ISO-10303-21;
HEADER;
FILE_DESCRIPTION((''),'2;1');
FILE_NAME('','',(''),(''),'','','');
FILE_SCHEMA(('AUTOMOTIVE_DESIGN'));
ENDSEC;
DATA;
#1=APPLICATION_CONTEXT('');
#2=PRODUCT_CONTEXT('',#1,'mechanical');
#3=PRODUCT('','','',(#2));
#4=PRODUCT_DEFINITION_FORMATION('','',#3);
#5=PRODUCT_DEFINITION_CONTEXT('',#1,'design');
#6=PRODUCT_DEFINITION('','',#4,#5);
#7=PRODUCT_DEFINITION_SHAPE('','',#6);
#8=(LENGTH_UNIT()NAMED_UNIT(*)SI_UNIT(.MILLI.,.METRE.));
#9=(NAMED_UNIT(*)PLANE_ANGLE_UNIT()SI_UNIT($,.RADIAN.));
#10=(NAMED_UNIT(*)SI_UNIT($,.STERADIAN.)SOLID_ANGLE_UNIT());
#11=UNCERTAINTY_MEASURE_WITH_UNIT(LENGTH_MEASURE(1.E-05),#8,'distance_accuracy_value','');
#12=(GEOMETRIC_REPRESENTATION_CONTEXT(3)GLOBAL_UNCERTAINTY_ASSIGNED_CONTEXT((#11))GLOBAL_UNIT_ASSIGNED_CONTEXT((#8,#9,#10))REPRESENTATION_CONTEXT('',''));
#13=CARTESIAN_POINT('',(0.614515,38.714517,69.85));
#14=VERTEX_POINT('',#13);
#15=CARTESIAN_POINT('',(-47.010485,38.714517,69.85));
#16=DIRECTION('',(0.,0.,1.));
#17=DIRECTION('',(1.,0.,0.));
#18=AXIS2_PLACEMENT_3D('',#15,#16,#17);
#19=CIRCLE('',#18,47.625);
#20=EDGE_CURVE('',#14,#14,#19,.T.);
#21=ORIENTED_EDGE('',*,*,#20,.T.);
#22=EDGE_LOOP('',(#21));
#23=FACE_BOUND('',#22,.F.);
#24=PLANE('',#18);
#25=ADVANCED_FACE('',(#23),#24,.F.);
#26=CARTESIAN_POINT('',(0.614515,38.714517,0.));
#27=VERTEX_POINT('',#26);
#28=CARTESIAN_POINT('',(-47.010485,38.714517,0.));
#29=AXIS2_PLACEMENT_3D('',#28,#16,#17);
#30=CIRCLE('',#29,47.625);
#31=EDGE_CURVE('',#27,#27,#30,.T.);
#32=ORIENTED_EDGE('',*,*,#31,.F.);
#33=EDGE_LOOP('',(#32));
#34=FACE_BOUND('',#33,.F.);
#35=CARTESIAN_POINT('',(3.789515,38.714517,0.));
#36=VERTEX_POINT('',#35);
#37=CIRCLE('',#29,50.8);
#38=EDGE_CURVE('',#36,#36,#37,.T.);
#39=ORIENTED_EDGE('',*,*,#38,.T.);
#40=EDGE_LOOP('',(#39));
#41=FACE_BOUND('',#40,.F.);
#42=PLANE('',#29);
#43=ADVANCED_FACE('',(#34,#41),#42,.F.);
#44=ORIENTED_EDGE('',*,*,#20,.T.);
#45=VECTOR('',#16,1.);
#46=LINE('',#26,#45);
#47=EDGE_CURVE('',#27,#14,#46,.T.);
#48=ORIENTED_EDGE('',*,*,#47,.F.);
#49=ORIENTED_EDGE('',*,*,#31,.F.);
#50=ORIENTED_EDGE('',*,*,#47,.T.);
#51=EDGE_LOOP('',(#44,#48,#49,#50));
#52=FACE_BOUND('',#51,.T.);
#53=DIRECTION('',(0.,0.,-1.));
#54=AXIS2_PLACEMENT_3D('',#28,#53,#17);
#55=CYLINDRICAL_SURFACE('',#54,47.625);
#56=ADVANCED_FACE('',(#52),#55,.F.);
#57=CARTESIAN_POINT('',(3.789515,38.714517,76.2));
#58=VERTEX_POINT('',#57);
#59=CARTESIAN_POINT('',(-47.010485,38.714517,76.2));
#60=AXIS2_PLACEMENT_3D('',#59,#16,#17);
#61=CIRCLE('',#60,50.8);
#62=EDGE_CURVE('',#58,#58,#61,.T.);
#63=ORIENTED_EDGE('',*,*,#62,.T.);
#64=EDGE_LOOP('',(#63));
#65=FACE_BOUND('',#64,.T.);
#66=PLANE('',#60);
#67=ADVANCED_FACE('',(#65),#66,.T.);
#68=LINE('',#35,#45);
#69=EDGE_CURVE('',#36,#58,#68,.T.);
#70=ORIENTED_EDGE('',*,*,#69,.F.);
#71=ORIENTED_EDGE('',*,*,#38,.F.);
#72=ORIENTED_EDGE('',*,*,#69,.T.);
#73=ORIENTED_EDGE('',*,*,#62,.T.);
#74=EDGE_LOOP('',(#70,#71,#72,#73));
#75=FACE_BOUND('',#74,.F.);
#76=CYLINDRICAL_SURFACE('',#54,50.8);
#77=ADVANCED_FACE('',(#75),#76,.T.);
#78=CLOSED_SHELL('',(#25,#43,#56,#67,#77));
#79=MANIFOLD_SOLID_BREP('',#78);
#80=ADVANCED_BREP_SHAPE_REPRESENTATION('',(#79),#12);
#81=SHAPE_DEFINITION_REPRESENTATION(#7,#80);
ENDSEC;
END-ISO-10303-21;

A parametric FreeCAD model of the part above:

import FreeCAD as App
import Part
import Sketcher
Q = App.Units.Quantity

doc = App.newDocument("Part")
body = doc.addObject("PartDesign::Body", "Body")

# Sketch on XY plane
sketch1 = body.newObject("Sketcher::SketchObject", "Sketch")
sketch1.AttachmentSupport = (doc.getObject("XY_Plane"), [""])
sketch1.MapMode = "FlatFace"
sketch1.addGeometry(Part.Circle(App.Vector(-47, 39, 0), App.Vector(0, 0, 1), 51), False)
sketch1.addConstraint([
    Sketcher.Constraint("Diameter", 0, Q("4 in")),
    Sketcher.Constraint("DistanceX", 0, 3, -1, 1, Q("47.010485 mm")),
    Sketcher.Constraint("DistanceY", -1, 1, 0, 3, Q("38.714517 mm")),
])
pad1 = body.newObject("PartDesign::Pad", "Pad")
pad1.Profile = sketch1
pad1.Length = Q("3 in")

# Sketch on XY plane
sketch2 = body.newObject("Sketcher::SketchObject", "Sketch001")
sketch2.AttachmentSupport = (doc.getObject("XY_Plane"), [""])
sketch2.MapMode = "FlatFace"
sketch2.addGeometry(Part.Circle(App.Vector(-47, 39, 0), App.Vector(0, 0, 1), 48), False)
sketch2.addConstraint([
    Sketcher.Constraint("Diameter", 0, Q("3.75 in")),
    Sketcher.Constraint("DistanceX", 0, 3, -1, 1, Q("47.010485 mm")),
    Sketcher.Constraint("DistanceY", -1, 1, 0, 3, Q("38.714517 mm")),
])
pocket1 = body.newObject("PartDesign::Pocket", "Pocket")
pocket1.Profile = sketch2
pocket1.Length = Q("2.75 in")
pocket1.Reversed = True

doc.recompute()
